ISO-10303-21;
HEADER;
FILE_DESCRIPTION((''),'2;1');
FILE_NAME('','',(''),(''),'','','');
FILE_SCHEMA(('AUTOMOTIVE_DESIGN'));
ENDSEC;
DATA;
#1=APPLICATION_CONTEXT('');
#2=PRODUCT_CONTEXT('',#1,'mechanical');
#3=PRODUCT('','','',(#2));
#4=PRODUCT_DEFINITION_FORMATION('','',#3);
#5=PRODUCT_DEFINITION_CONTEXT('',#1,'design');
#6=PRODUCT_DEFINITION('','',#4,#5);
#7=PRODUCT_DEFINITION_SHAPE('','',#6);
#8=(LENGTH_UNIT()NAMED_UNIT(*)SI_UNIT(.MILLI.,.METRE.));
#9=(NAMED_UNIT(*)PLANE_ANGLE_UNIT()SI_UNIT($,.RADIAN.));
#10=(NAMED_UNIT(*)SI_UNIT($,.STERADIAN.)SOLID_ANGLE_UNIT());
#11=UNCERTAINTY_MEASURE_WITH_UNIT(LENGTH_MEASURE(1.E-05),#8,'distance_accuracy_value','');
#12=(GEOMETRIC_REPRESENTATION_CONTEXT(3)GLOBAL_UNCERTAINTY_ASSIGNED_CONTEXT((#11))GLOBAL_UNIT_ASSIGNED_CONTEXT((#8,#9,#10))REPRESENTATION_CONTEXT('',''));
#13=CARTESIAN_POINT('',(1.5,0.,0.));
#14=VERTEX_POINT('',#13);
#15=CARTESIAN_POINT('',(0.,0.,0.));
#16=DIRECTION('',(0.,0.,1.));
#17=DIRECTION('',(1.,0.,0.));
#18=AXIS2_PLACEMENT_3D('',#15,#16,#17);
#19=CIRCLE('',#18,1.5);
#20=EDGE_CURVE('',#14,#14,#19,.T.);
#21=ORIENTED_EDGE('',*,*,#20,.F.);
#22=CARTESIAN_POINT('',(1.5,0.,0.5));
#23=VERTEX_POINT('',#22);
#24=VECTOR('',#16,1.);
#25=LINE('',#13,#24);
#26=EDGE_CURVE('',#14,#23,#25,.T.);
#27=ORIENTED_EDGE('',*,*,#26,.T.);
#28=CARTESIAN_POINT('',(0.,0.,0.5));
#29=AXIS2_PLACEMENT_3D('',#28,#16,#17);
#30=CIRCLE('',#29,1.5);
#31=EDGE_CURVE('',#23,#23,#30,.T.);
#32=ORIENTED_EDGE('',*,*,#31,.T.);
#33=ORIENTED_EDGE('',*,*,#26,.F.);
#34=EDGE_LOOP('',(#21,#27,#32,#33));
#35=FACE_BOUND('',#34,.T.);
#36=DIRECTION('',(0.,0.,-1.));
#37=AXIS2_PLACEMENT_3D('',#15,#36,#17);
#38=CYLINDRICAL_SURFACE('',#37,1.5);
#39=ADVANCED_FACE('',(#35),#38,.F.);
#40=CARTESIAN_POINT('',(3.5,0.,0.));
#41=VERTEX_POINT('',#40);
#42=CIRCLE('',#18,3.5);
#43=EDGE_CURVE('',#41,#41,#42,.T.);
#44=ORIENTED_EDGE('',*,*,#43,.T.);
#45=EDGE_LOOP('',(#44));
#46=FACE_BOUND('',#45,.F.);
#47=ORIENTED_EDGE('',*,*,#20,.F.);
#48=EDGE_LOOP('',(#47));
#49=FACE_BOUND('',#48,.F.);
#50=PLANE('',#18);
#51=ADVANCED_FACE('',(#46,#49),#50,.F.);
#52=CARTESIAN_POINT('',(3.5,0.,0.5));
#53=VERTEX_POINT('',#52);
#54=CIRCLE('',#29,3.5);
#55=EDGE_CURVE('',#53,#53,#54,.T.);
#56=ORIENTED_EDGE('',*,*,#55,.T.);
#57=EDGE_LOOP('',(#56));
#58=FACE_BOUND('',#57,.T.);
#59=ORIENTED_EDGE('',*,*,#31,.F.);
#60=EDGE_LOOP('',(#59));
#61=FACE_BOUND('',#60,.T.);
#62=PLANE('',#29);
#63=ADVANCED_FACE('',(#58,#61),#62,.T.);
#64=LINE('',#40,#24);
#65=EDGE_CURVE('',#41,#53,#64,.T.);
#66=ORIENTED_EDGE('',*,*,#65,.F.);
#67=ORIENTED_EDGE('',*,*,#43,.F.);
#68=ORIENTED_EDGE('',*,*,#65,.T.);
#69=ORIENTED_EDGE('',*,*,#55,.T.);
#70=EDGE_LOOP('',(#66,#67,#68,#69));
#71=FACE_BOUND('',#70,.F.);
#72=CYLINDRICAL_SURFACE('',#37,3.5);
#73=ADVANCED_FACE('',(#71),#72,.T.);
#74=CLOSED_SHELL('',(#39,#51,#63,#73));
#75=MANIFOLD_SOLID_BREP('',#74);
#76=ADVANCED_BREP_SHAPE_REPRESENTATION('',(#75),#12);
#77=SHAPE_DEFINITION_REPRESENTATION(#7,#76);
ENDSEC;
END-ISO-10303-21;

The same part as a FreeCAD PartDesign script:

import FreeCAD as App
import Part
import Sketcher
Q = App.Units.Quantity

doc = App.newDocument("Part")
params = doc.addObject("Spreadsheet::Sheet", "Params")
for row, (alias, value) in enumerate([
    ("sketch1_diameter", "7 mm"),
    ("sketch1_diameter2", "3 mm"),
    ("pad1_length", "0.5 mm"),
], start=1):
    params.set(f"A{row}", alias)
    params.set(f"B{row}", "=" + value)
    params.setAlias(f"B{row}", alias)

body = doc.addObject("PartDesign::Body", "Body")

sketch1 = body.newObject("Sketcher::SketchObject", "Sketch")
sketch1.AttachmentSupport = (doc.getObject("XY_Plane"), [""])
sketch1.MapMode = "FlatFace"
sketch1.addGeometry([
    Part.Circle(App.Vector(0, 0, 0), App.Vector(0, 0, 1), 3.5),
    Part.Circle(App.Vector(0, 0, 0), App.Vector(0, 0, 1), 1.5),
], False)
sketch1.addConstraint([
    Sketcher.Constraint("Coincident", 0, 3, -1, 1),
    Sketcher.Constraint("Coincident", 1, 3, -1, 1),
    Sketcher.Constraint("Diameter", 0, Q("7 mm")),
    Sketcher.Constraint("Diameter", 1, Q("3 mm")),
])
sketch1.setExpression("Constraints[2]", "Params.sketch1_diameter")
sketch1.setExpression("Constraints[3]", "Params.sketch1_diameter2")
pad1 = body.newObject("PartDesign::Pad", "Pad")
pad1.Profile = sketch1
pad1.setExpression("Length", "Params.pad1_length")

doc.recompute()
